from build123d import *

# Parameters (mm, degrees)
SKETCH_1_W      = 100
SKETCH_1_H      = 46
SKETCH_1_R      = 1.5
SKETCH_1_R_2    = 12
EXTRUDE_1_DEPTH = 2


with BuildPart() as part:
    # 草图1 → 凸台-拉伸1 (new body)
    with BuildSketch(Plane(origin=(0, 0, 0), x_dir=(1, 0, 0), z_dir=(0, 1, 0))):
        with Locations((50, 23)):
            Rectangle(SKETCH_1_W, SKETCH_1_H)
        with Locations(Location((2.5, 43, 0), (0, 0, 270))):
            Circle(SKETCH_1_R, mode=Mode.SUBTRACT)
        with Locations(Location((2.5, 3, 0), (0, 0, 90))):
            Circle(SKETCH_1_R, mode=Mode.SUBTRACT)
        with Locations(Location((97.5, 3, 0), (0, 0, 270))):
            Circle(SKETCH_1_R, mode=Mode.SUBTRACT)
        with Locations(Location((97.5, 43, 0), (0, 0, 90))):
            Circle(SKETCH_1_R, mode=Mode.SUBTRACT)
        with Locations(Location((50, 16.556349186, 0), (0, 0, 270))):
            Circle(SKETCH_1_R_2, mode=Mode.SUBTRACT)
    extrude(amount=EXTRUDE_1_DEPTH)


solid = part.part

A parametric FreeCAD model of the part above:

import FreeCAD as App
import Part
import Sketcher

doc = App.newDocument("Part")
body = doc.addObject("PartDesign::Body", "Body")

# Sketch on XZ plane
sketch1 = body.newObject("Sketcher::SketchObject", "Sketch")
sketch1.AttachmentSupport = (doc.getObject("XZ_Plane"), [""])
sketch1.MapMode = "FlatFace"
sketch1.addGeometry(Part.LineSegment(App.Vector(0, -46, 0), App.Vector(0, 0, 0)), False)
sketch1.addGeometry(Part.LineSegment(App.Vector(0, 0, 0), App.Vector(100, 0, 0)), False)
sketch1.addGeometry(Part.LineSegment(App.Vector(100, 0, 0), App.Vector(100, -46, 0)), False)
sketch1.addGeometry(Part.LineSegment(App.Vector(100, -46, 0), App.Vector(0, -46, 0)), False)
sketch1.addGeometry(Part.Circle(App.Vector(2.5, -3, 0), App.Vector(0, 0, 1), 1.5), False)
sketch1.addGeometry(Part.Circle(App.Vector(50, -16.6, 0), App.Vector(0, 0, 1), 12), False)
sketch1.addGeometry(Part.Circle(App.Vector(97.5, -3, 0), App.Vector(0, 0, 1), 1.5), False)
sketch1.addGeometry(Part.Circle(App.Vector(2.5, -43, 0), App.Vector(0, 0, 1), 1.5), False)
sketch1.addGeometry(Part.Circle(App.Vector(97.5, -43, 0), App.Vector(0, 0, 1), 1.5), False)
sketch1.addConstraint(Sketcher.Constraint("Coincident", 0, 2, 1, 1))
sketch1.addConstraint(Sketcher.Constraint("Coincident", 1, 2, 2, 1))
sketch1.addConstraint(Sketcher.Constraint("Coincident", 2, 2, 3, 1))
sketch1.addConstraint(Sketcher.Constraint("Coincident", 3, 2, 0, 1))
sketch1.addConstraint(Sketcher.Constraint("Vertical", 0))
sketch1.addConstraint(Sketcher.Constraint("Horizontal", 1))
sketch1.addConstraint(Sketcher.Constraint("Vertical", 2))
sketch1.addConstraint(Sketcher.Constraint("Horizontal", 3))
sketch1.addConstraint(Sketcher.Constraint("Coincident", 0, 2, -1, 1))
sketch1.addConstraint(Sketcher.Constraint("Equal", 4, 6))
sketch1.addConstraint(Sketcher.Constraint("Equal", 6, 7))
sketch1.addConstraint(Sketcher.Constraint("Equal", 7, 8))
sketch1.addConstraint(Sketcher.Constraint("Horizontal", 4, 3, 6, 3))
sketch1.addConstraint(Sketcher.Constraint("Horizontal", 7, 3, 8, 3))
sketch1.addConstraint(Sketcher.Constraint("Vertical", 4, 3, 7, 3))
sketch1.addConstraint(Sketcher.Constraint("Vertical", 6, 3, 8, 3))
sketch1.addConstraint(Sketcher.Constraint("Diameter", 4, 3.0))
sketch1.addConstraint(Sketcher.Constraint("Diameter", 5, 24.0))
sketch1.addConstraint(Sketcher.Constraint("DistanceX", 1, 1, 1, 2, 100.0))
sketch1.addConstraint(Sketcher.Constraint("DistanceY", 0, 1, 0, 2, 46.0))
sketch1.addConstraint(Sketcher.Constraint("DistanceY", 4, 3, -1, 1, 3.0))
sketch1.addConstraint(Sketcher.Constraint("DistanceX", -1, 1, 5, 3, 50.0))
sketch1.addConstraint(Sketcher.Constraint("DistanceY", 7, 3, -1, 1, 43.0))
sketch1.addConstraint(Sketcher.Constraint("DistanceX", 4, 3, 6, 3, 95.0))
sketch1.addConstraint(Sketcher.Constraint("DistanceX", -1, 1, 4, 3, 2.5))
sketch1.addConstraint(Sketcher.Constraint("DistanceY", 5, 3, -1, 1, 16.556349))
pad1 = body.newObject("PartDesign::Pad", "Pad")
pad1.Profile = sketch1
pad1.Length = 2
pad1.Reversed = True

doc.recompute()
